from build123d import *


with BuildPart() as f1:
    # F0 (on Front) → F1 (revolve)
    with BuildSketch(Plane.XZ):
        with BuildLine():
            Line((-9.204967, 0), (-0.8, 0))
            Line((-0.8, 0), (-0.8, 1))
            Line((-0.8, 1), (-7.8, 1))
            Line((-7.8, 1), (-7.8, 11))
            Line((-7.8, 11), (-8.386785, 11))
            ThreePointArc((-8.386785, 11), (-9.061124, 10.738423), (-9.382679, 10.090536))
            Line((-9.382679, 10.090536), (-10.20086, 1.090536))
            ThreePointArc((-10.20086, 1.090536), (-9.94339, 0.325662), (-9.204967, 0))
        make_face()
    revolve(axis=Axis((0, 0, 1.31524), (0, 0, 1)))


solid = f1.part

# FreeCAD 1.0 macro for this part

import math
import FreeCAD as App
import Part
import Sketcher
from FreeCAD import Vector
Q = App.Units.Quantity

doc = App.newDocument("Part")
body = doc.addObject("PartDesign::Body", "Body")

# Sketch on XZ plane
sketch1 = doc.addObject("Sketcher::SketchObject", "Sketch")
body.addObject(sketch1)
sketch1.AttachmentSupport = (doc.XZ_Plane, [""])
sketch1.MapMode = "FlatFace"
sketch1.addGeometry([
    Part.LineSegment(Vector(-9.2, 0, 0), Vector(-0.8, 0, 0)),  # 0
    Part.LineSegment(Vector(-0.8, 0, 0), Vector(-0.8, 1, 0)),  # 1
    Part.LineSegment(Vector(-0.8, 1, 0), Vector(-7.8, 1, 0)),  # 2
    Part.LineSegment(Vector(-7.8, 1, 0), Vector(-7.8, 11, 0)),  # 3
    Part.LineSegment(Vector(-7.8, 11, 0), Vector(-8.4, 11, 0)),  # 4
    Part.ArcOfCircle(Part.Circle(Vector(-8.4, 10, 0), Vector(0, 0, 1), 1), math.radians(90), math.radians(175)),  # 5
    Part.LineSegment(Vector(-9.4, 10.1, 0), Vector(-10.2, 1.1, 0)),  # 6
    Part.ArcOfCircle(Part.Circle(Vector(-9.2, 1, 0), Vector(0, 0, 1), 1), math.radians(175), math.radians(270)),  # 7
], False)
sketch1.addConstraint([
    Sketcher.Constraint("Coincident", 0, 2, 1, 1),
    Sketcher.Constraint("Coincident", 1, 2, 2, 1),
    Sketcher.Constraint("Coincident", 2, 2, 3, 1),
    Sketcher.Constraint("Coincident", 3, 2, 4, 1),
    Sketcher.Constraint("Tangent", 4, 2, 5, 1),
    Sketcher.Constraint("Tangent", 5, 2, 6, 1),
    Sketcher.Constraint("Tangent", 6, 2, 7, 1),
    Sketcher.Constraint("Tangent", 7, 2, 0, 1),
    Sketcher.Constraint("Horizontal", 0),
    Sketcher.Constraint("Vertical", 1),
    Sketcher.Constraint("Horizontal", 2),
    Sketcher.Constraint("Vertical", 3),
    Sketcher.Constraint("Horizontal", 4),
    Sketcher.Constraint("Equal", 5, 7),
    Sketcher.Constraint("PointOnObject", 0, 2, -1),
    Sketcher.Constraint("Horizontal", 7, 3, 1, 2),
    Sketcher.Constraint("Radius", 5, Q("0.999999 mm")),
    Sketcher.Constraint("DistanceX", 2, 2, 2, 1, Q("7 mm")),
    Sketcher.Constraint("DistanceY", 3, 1, 3, 2, Q("10 mm")),
    Sketcher.Constraint("DistanceX", 0, 2, -1, 1, Q("0.8 mm")),
    Sketcher.Constraint("DistanceX", 0, 1, 0, 2, Q("8.404967 mm")),
    Sketcher.Constraint("DistanceX", 4, 2, 4, 1, Q("0.586785 mm")),
])
revolution = doc.addObject("PartDesign::Revolution", "Revolution")
body.addObject(revolution)
revolution.Profile = sketch1
revolution.ReferenceAxis = (sketch1, ["V_Axis"])
revolution.Angle = 360

doc.recompute()
